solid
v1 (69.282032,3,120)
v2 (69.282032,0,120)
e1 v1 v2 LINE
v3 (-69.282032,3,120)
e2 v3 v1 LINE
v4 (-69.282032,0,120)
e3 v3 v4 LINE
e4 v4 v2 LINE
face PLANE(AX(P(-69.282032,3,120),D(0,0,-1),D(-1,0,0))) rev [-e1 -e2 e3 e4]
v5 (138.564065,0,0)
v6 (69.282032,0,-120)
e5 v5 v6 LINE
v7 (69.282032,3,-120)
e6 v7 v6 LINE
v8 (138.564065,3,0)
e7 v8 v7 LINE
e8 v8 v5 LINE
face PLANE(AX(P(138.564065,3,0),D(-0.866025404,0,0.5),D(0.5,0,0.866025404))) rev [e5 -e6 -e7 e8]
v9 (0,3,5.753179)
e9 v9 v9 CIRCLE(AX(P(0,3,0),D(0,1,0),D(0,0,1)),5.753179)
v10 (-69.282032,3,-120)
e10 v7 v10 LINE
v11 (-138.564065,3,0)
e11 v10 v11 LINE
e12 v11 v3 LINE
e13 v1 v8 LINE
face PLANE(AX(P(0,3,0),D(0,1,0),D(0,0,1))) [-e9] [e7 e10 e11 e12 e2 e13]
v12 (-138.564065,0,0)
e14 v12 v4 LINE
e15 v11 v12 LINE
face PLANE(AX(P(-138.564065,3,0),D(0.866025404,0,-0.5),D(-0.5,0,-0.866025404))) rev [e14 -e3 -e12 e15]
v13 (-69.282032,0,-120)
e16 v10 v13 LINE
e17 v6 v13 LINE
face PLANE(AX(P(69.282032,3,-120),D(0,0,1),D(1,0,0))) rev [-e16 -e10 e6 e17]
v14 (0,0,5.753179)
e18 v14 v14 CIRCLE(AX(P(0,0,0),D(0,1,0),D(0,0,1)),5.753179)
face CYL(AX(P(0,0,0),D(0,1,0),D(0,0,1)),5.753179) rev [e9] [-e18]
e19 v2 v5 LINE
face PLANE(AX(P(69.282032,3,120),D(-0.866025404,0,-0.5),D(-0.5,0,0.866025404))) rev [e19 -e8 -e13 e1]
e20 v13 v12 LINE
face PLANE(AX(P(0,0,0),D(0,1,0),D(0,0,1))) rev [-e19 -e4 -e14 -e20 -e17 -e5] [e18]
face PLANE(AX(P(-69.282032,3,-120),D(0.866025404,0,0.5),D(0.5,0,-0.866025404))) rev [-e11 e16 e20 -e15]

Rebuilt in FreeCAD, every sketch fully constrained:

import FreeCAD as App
import Part
import Sketcher
Q = App.Units.Quantity


def add_polygon(sketch, points):
    """Adds a closed chain of lines whose ends are joined by coincident constraints."""
    first, n = sketch.GeometryCount, len(points)
    for a, b in zip(points, points[1:] + points[:1]):
        sketch.addGeometry(Part.LineSegment(App.Vector(*a, 0), App.Vector(*b, 0)), False)
    for i in range(n):
        sketch.addConstraint(Sketcher.Constraint("Coincident", first + i, 2, first + (i + 1) % n, 1))

doc = App.newDocument("Part")
params = doc.addObject("Spreadsheet::Sheet", "Params")
for row, (alias, value) in enumerate([
    ("pad1_length", "3 mm"),
], start=1):
    params.set(f"A{row}", alias)
    params.set(f"B{row}", "=" + value)
    params.setAlias(f"B{row}", alias)

body = doc.addObject("PartDesign::Body", "Body")

# Sketch on XZ plane
sketch1 = body.newObject("Sketcher::SketchObject", "Sketch")
sketch1.AttachmentSupport = (doc.getObject("XZ_Plane"), [""])
sketch1.MapMode = "FlatFace"
add_polygon(sketch1, [(69, -120), (-69, -120), (-139, 0), (-69, 120), (69, 120), (139, 0)])  # lines 0-5
sketch1.addConstraint(Sketcher.Constraint("Horizontal", 0))
sketch1.addConstraint(Sketcher.Constraint("Horizontal", 3))
sketch1.addConstraint(Sketcher.Constraint("Symmetric", 0, 2, 3, 2, -1, 1))
sketch1.addConstraint(Sketcher.Constraint("Symmetric", 1, 2, 4, 2, -1, 1))
sketch1.addConstraint(Sketcher.Constraint("PointOnObject", 1, 2, -1))
sketch1.addConstraint(Sketcher.Constraint("Parallel", 2, 5))
sketch1.addConstraint(Sketcher.Constraint("Vertical", 0, 2, 2, 2))
sketch1.addConstraint(Sketcher.Constraint("Angle", 1, Q("120 deg")))
sketch1.addConstraint(Sketcher.Constraint("DistanceY", 0, 2, -1, 1, Q("120 mm")))
sketch1.addConstraint(Sketcher.Constraint("DistanceX", 0, 2, 0, 1, Q("138.564065 mm")))
pad1 = body.newObject("PartDesign::Pad", "Pad")
pad1.Profile = sketch1
pad1.setExpression("Length", "Params.pad1_length")
pad1.Reversed = True

# Sketch on XZ plane
sketch2 = body.newObject("Sketcher::SketchObject", "Sketch001")
sketch2.AttachmentSupport = (doc.getObject("XZ_Plane"), [""])
sketch2.MapMode = "FlatFace"
sketch2.AttachmentOffset = App.Placement(App.Vector(0, 0, -3), App.Rotation())
sketch2.addGeometry(Part.Circle(App.Vector(0, 0, 0), App.Vector(0, 0, 1), 6), False)
sketch2.addConstraint(Sketcher.Constraint("Coincident", 0, 3, -1, 1))
sketch2.addConstraint(Sketcher.Constraint("Diameter", 0, Q("11.506358 mm")))
pocket1 = body.newObject("PartDesign::Pocket", "Pocket")
pocket1.Profile = sketch2
pocket1.Type = "ThroughAll"
pocket1.Reversed = True

doc.recompute()
